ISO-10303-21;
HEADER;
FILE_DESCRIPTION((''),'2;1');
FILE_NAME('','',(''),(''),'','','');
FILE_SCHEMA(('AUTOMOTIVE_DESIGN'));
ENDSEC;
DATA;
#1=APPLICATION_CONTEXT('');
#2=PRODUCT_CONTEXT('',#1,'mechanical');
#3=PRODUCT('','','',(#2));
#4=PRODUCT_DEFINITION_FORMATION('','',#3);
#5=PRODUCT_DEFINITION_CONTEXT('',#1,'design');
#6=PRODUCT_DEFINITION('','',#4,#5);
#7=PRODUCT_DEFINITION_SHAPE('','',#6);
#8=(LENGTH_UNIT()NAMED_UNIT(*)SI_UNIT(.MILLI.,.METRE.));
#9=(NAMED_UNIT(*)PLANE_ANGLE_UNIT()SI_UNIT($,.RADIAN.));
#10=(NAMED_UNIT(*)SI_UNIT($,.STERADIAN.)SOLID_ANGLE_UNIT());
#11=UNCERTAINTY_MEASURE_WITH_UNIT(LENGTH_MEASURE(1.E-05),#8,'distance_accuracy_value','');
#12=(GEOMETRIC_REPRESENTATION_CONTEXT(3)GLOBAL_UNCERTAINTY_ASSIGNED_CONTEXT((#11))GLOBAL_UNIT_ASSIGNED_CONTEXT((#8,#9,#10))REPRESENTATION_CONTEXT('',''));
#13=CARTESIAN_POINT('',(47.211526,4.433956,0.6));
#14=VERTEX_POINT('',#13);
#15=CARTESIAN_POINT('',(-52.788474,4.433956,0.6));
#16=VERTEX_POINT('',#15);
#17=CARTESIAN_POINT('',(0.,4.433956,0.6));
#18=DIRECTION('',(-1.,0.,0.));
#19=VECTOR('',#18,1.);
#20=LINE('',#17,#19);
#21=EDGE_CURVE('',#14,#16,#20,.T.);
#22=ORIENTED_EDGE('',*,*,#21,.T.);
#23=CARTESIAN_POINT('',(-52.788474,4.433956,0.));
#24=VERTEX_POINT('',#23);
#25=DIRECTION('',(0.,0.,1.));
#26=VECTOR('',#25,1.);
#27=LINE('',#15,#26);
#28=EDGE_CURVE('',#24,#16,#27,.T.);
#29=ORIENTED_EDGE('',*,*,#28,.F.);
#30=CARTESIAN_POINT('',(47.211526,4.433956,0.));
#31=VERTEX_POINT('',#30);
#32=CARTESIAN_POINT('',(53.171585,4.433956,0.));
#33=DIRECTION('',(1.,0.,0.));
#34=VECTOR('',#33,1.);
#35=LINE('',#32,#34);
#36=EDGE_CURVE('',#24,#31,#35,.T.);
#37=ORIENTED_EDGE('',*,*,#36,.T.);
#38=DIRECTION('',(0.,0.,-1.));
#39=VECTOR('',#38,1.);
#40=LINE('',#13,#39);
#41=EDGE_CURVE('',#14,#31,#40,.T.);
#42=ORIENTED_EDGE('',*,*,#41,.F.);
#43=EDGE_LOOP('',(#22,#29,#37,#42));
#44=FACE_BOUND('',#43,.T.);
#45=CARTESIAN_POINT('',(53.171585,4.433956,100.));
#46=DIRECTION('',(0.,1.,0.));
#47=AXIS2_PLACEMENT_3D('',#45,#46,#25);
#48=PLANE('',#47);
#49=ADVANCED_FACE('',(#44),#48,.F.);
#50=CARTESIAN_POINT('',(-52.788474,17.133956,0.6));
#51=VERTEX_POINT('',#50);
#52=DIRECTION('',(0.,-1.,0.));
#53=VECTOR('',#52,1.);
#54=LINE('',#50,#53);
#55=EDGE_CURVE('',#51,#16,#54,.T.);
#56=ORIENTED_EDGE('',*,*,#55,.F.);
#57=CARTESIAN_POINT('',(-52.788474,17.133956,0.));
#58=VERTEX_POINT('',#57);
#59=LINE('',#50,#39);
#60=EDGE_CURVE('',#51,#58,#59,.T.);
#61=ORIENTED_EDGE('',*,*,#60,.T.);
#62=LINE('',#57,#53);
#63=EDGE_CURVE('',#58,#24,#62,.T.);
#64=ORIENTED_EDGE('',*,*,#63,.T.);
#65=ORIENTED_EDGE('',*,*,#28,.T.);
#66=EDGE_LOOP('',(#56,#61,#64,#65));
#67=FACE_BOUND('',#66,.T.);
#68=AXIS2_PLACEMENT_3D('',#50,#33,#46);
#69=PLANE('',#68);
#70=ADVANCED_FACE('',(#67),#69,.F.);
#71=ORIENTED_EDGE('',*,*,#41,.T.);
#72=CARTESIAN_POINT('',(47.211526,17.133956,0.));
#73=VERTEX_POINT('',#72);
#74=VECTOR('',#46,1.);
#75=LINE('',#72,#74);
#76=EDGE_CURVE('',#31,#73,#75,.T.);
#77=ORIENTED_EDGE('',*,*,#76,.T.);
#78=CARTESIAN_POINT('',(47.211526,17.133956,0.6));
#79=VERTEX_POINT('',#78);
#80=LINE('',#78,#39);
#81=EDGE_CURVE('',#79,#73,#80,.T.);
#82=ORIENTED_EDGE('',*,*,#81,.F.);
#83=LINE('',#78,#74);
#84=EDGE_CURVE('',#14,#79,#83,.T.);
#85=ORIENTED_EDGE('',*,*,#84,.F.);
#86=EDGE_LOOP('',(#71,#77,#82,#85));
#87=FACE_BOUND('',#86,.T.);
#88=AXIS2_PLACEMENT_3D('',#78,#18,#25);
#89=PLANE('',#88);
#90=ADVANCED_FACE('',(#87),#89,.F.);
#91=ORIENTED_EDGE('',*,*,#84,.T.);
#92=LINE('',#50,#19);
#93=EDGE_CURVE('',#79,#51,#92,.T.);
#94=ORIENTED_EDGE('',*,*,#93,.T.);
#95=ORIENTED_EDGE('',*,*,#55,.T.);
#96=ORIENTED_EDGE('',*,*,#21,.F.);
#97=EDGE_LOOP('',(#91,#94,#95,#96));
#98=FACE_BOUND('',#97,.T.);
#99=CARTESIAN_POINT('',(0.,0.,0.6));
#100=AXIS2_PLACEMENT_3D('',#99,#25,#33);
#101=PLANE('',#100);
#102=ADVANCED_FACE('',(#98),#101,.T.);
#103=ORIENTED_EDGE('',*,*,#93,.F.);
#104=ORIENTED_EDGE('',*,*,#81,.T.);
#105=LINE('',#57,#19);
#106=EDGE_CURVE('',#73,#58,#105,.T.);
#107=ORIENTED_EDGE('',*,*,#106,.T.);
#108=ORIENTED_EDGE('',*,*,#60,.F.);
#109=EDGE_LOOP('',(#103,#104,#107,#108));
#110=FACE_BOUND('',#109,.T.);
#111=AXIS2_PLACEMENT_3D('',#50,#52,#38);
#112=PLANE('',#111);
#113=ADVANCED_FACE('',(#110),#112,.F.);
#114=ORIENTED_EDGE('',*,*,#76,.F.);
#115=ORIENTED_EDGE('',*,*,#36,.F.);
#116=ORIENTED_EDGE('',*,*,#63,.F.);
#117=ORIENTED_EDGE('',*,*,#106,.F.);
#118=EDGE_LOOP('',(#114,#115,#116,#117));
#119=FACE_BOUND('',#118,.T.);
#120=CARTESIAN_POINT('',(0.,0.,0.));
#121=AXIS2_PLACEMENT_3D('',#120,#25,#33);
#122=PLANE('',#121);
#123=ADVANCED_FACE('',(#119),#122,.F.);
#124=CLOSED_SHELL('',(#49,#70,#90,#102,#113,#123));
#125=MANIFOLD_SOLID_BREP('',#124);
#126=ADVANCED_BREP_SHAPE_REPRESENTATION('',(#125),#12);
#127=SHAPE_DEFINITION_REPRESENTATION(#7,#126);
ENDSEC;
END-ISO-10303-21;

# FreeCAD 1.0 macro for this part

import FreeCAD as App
import Part
import Sketcher
from FreeCAD import Vector


def add_polygon(sketch, points):
    """Adds a closed chain of lines whose ends are joined by coincident constraints."""
    first, n = sketch.GeometryCount, len(points)
    for a, b in zip(points, points[1:] + points[:1]):
        sketch.addGeometry(Part.LineSegment(App.Vector(*a, 0), App.Vector(*b, 0)), False)
    for i in range(n):
        sketch.addConstraint(Sketcher.Constraint("Coincident", first + i, 2, first + (i + 1) % n, 1))

doc = App.newDocument("Part")
body = doc.addObject("PartDesign::Body", "Body")

sketch1 = doc.addObject("Sketcher::SketchObject", "Sketch")
body.addObject(sketch1)
sketch1.AttachmentSupport = (doc.XY_Plane, [""])
sketch1.MapMode = "FlatFace"
add_polygon(sketch1, [(-53, 17), (-53, -1), (47, -1), (47, 17)])
sketch1.addConstraint([
    Sketcher.Constraint("Vertical", 0),
    Sketcher.Constraint("Horizontal", 1),
    Sketcher.Constraint("Vertical", 2),
    Sketcher.Constraint("Horizontal", 3),
    Sketcher.Constraint("DistanceX", 1, 1, 1, 2, 100.0),
    Sketcher.Constraint("DistanceY", 0, 2, 0, 1, 18.0),
    Sketcher.Constraint("DistanceX", 0, 2, -1, 1, 52.788474),
    Sketcher.Constraint("DistanceY", 0, 2, -1, 1, 0.866044),
])
pad1 = doc.addObject("PartDesign::Pad", "Pad")
body.addObject(pad1)
pad1.Profile = sketch1
pad1.Length = 0.6

sketch2 = doc.addObject("Sketcher::SketchObject", "Sketch001")
body.addObject(sketch2)
sketch2.AttachmentSupport = (doc.YZ_Plane, [""])
sketch2.MapMode = "FlatFace"
sketch2.AttachmentOffset = App.Placement(Vector(0, 0, -52.788474), App.Rotation())
add_polygon(sketch2, [(2.6, 0), (-0.9, 0), (-0.9, 0.6), (2.6, 0.6)])
sketch2.addConstraint([
    Sketcher.Constraint("Horizontal", 0),
    Sketcher.Constraint("Vertical", 1),
    Sketcher.Constraint("Horizontal", 2),
    Sketcher.Constraint("Vertical", 3),
    Sketcher.Constraint("PointOnObject", 0, 2, -1),
    Sketcher.Constraint("DistanceX", 0, 2, 0, 1, 3.5),
    Sketcher.Constraint("DistanceY", 1, 1, 1, 2, 0.6),
    Sketcher.Constraint("DistanceX", 0, 2, -1, 1, 0.866044),
])
pocket1 = doc.addObject("PartDesign::Pocket", "Pocket")
body.addObject(pocket1)
pocket1.Profile = sketch2
pocket1.Length = 100
pocket1.Reversed = True

sketch3 = doc.addObject("Sketcher::SketchObject", "Sketch002")
body.addObject(sketch3)
sketch3.AttachmentSupport = (doc.XY_Plane, [""])
sketch3.MapMode = "FlatFace"
add_polygon(sketch3, [(53.2, 4.4), (53.2, 2.6), (-56.3, 2.6), (-56.3, 4.4)])
sketch3.addConstraint([
    Sketcher.Constraint("Vertical", 0),
    Sketcher.Constraint("Horizontal", 1),
    Sketcher.Constraint("Vertical", 2),
    Sketcher.Constraint("Horizontal", 3),
    Sketcher.Constraint("DistanceY", 0, 2, 0, 1, 1.8),
    Sketcher.Constraint("DistanceX", 1, 2, 1, 1, 109.434343),
    Sketcher.Constraint("DistanceX", -1, 1, 0, 2, 53.171585),
    Sketcher.Constraint("DistanceY", -1, 1, 0, 2, 2.633956),
])
pocket2 = doc.addObject("PartDesign::Pocket", "Pocket001")
body.addObject(pocket2)
pocket2.Profile = sketch3
pocket2.Length = 100
pocket2.Reversed = True

doc.recompute()
